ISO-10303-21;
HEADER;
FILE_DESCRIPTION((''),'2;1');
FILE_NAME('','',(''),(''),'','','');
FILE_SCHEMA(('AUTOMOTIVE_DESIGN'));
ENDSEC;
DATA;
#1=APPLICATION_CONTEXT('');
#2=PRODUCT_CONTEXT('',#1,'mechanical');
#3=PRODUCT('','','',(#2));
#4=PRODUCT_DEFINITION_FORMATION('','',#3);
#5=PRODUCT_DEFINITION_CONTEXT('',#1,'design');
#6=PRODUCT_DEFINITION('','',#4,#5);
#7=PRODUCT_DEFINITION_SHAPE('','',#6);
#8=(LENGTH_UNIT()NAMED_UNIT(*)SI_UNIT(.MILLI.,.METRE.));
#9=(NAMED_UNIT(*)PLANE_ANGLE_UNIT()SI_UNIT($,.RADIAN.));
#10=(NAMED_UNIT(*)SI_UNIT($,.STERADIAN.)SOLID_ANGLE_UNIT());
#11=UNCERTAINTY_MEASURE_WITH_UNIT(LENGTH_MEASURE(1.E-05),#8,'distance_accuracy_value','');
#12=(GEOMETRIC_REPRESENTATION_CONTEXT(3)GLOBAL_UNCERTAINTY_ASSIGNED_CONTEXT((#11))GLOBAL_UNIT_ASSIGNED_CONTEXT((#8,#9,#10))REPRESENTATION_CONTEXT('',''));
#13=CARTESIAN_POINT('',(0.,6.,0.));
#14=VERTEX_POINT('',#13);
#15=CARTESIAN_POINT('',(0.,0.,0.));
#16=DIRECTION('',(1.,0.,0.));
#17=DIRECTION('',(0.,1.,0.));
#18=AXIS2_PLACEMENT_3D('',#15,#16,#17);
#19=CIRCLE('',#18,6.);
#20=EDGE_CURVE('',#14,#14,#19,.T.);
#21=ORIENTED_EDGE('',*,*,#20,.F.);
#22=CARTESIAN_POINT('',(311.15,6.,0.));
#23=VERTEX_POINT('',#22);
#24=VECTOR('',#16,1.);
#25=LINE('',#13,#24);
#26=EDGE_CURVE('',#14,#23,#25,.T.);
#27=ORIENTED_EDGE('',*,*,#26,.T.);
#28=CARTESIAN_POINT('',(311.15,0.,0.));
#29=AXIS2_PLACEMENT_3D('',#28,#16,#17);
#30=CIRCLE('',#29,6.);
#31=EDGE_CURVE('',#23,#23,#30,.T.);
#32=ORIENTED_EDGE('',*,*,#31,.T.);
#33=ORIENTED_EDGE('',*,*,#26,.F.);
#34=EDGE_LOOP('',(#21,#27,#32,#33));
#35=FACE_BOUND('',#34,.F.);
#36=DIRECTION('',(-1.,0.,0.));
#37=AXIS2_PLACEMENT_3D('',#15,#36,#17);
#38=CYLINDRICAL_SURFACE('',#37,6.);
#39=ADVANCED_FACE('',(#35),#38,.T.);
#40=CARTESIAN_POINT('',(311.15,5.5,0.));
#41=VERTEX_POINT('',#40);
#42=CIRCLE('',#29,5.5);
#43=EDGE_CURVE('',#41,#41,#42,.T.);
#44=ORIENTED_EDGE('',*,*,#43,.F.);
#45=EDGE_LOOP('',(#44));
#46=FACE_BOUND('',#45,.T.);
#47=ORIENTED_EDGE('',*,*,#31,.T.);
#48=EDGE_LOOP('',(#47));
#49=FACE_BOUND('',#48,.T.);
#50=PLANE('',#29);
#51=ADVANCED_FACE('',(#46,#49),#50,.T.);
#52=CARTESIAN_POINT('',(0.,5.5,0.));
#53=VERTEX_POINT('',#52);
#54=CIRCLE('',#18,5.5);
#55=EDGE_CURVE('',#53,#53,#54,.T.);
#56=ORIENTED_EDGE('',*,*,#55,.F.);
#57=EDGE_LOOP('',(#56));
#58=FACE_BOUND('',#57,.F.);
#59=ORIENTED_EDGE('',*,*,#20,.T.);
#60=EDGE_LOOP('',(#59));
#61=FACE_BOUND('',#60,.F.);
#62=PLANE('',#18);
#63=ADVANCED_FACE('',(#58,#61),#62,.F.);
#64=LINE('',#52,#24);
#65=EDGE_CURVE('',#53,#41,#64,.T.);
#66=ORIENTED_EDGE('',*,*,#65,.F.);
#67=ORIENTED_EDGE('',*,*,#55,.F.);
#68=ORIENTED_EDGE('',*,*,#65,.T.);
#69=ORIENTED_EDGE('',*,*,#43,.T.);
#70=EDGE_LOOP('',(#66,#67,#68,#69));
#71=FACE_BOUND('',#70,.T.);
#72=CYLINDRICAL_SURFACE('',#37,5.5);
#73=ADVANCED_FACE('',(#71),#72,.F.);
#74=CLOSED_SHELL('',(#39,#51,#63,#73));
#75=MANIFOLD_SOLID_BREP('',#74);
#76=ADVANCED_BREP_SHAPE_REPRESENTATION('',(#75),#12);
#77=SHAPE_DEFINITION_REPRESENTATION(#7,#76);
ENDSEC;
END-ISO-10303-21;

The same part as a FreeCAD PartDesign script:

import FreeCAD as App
import Part
import Sketcher

doc = App.newDocument("Part")
params = doc.addObject("Spreadsheet::Sheet", "Params")
for row, (alias, value) in enumerate([
    ("sketch1_diameter", "12 mm"),
    ("sketch1_diameter2", "11 mm"),
    ("pad1_length", "311.15 mm"),
], start=1):
    params.set(f"A{row}", alias)
    params.set(f"B{row}", "=" + value)
    params.setAlias(f"B{row}", alias)

body = doc.addObject("PartDesign::Body", "Body")

# Sketch on YZ plane
sketch1 = doc.addObject("Sketcher::SketchObject", "Sketch")
body.addObject(sketch1)
sketch1.AttachmentSupport = (doc.YZ_Plane, [""])
sketch1.MapMode = "FlatFace"
sketch1.addGeometry(Part.Circle(App.Vector(0, 0, 0), App.Vector(0, 0, 1), 6), False)
sketch1.addGeometry(Part.Circle(App.Vector(0, 0, 0), App.Vector(0, 0, 1), 6), False)
sketch1.addConstraint(Sketcher.Constraint("Coincident", 0, 3, -1, 1))
sketch1.addConstraint(Sketcher.Constraint("Coincident", 1, 3, -1, 1))
sketch1.addConstraint(Sketcher.Constraint("Diameter", 0, 12.0))
sketch1.addConstraint(Sketcher.Constraint("Diameter", 1, 11.0))
sketch1.setExpression("Constraints[2]", "Params.sketch1_diameter")
sketch1.setExpression("Constraints[3]", "Params.sketch1_diameter2")
pad1 = doc.addObject("PartDesign::Pad", "Pad")
body.addObject(pad1)
pad1.Profile = sketch1
pad1.setExpression("Length", "Params.pad1_length")

doc.recompute()
